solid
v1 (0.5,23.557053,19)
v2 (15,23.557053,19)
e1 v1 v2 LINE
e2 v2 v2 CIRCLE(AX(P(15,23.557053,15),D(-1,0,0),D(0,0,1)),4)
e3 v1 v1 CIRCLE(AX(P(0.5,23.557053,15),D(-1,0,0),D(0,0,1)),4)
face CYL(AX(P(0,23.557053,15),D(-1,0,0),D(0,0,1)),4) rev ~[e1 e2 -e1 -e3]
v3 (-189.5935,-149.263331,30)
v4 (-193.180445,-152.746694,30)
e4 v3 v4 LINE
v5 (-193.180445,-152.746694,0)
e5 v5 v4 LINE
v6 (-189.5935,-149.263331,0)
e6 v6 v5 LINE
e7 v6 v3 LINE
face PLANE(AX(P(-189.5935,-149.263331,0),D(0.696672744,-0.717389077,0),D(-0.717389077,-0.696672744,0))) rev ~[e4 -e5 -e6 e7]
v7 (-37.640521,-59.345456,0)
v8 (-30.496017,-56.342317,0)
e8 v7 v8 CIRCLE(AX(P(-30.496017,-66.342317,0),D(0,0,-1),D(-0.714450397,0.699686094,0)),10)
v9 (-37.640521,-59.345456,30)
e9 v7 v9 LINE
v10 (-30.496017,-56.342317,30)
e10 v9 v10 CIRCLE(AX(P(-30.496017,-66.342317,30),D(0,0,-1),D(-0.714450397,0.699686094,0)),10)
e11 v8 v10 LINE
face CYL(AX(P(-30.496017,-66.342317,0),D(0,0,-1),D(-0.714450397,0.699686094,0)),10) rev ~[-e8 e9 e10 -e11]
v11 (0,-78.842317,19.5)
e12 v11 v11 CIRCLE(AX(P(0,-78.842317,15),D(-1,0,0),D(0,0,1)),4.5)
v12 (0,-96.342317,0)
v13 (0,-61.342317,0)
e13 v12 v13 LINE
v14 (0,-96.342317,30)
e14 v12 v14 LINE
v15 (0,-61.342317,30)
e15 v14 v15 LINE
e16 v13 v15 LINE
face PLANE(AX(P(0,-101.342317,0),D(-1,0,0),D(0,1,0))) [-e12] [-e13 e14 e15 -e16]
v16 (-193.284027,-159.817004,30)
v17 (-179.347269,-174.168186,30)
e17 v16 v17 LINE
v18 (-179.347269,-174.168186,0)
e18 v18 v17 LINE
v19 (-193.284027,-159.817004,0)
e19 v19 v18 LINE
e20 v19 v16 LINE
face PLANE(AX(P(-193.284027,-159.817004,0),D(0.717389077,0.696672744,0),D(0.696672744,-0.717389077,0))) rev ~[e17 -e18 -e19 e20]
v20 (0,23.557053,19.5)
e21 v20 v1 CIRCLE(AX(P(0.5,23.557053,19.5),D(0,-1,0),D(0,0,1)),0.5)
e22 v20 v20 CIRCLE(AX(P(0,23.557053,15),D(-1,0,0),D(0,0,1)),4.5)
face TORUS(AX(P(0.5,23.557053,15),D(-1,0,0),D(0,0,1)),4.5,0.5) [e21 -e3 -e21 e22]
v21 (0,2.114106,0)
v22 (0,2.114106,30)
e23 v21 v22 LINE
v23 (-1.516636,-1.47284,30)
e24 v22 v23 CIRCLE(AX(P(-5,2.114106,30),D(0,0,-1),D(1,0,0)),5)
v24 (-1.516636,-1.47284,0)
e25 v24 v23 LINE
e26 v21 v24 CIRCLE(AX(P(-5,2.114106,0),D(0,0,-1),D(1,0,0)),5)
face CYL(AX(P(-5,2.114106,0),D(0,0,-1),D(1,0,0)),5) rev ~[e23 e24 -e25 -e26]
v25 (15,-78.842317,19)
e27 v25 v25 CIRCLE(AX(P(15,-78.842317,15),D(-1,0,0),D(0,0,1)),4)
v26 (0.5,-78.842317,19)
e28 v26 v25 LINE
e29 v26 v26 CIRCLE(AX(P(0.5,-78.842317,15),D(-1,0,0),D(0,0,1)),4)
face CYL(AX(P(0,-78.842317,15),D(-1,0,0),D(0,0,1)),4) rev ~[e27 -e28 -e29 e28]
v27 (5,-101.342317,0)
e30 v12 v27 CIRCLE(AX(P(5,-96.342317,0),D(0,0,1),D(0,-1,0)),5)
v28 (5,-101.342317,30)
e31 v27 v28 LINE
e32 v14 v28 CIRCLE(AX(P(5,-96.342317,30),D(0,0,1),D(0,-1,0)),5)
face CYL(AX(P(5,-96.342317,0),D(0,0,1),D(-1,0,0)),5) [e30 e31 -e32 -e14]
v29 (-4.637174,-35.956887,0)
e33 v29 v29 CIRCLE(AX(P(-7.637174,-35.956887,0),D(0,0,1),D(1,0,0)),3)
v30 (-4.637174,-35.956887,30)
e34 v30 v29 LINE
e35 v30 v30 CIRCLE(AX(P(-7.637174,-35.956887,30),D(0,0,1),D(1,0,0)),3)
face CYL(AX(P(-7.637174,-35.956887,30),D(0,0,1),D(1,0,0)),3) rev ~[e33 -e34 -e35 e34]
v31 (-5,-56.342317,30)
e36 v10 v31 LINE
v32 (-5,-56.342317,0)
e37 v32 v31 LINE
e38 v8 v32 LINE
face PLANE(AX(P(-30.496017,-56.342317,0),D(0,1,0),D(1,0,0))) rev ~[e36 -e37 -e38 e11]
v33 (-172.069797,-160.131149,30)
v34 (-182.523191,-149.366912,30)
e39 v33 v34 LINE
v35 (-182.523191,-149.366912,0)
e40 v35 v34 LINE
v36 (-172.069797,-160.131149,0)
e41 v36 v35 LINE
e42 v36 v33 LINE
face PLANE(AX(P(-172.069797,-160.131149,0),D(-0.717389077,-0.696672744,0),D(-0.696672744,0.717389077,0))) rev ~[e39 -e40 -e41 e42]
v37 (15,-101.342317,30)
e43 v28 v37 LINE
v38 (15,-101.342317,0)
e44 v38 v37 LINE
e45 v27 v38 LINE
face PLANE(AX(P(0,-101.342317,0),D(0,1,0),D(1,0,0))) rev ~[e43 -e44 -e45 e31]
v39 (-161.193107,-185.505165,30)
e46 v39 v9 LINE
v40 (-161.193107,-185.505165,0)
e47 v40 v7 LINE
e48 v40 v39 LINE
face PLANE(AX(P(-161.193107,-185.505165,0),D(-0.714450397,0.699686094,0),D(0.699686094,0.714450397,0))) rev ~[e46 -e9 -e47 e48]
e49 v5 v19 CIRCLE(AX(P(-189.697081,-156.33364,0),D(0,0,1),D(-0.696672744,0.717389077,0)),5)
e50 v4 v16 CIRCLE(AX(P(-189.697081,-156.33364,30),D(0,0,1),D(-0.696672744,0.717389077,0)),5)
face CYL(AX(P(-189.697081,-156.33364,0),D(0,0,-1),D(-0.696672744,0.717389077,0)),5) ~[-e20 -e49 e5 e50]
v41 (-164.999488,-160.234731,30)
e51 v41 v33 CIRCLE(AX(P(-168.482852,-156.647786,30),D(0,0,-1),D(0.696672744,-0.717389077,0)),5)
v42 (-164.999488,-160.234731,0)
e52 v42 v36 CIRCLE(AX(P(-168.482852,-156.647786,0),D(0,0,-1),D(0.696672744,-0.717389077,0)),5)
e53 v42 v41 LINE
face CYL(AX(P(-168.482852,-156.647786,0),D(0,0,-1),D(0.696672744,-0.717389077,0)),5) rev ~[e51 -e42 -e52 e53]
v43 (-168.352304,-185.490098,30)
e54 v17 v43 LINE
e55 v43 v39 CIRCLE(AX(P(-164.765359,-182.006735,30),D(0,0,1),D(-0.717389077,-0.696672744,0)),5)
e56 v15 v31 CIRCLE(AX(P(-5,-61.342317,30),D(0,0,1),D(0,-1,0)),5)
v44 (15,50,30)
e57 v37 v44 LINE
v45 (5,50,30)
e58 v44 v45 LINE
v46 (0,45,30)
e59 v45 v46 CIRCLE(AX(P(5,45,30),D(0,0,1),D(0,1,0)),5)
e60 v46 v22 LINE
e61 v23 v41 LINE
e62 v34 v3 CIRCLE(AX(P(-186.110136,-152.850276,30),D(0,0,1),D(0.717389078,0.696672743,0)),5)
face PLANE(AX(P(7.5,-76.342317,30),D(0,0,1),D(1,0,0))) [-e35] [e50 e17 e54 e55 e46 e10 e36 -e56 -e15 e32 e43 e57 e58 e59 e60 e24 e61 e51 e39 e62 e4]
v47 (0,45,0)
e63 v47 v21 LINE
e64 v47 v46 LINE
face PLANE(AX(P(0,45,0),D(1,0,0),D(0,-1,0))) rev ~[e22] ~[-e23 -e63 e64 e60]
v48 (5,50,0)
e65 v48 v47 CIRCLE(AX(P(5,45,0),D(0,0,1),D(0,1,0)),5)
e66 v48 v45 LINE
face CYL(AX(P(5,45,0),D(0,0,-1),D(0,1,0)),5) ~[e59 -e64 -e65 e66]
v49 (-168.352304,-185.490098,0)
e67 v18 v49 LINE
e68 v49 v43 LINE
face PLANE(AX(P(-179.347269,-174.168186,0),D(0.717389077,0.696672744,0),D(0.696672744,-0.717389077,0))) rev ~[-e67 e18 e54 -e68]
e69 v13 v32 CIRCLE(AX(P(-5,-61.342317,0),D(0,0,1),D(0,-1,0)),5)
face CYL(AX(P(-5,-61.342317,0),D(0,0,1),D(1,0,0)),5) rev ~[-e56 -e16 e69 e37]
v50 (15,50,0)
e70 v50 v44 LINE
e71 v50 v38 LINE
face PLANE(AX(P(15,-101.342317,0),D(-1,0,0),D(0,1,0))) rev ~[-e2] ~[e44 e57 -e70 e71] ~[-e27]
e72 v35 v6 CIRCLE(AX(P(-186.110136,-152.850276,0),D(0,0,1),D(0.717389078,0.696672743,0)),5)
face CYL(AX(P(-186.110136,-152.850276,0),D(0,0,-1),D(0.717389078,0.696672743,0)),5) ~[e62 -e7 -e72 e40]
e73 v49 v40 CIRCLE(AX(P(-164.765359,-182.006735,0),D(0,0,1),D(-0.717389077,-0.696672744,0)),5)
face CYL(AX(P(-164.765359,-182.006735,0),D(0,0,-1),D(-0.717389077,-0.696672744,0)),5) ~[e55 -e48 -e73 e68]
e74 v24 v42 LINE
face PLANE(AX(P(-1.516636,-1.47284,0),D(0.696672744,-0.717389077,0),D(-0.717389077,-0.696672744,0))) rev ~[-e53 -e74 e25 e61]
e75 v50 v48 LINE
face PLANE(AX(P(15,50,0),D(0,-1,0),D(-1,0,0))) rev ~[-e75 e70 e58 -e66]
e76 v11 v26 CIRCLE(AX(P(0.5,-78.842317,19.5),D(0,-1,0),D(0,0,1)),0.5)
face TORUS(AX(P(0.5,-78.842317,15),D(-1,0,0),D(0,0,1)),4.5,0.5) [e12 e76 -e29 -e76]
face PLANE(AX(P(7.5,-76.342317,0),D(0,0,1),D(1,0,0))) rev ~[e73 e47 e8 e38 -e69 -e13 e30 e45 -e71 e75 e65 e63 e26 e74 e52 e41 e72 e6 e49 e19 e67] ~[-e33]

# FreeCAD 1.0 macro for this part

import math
import FreeCAD as App
import Part
import Sketcher
from FreeCAD import Vector
Q = App.Units.Quantity


def edges_at(feature, points):
    """Names of the edges that pass closest to the given points."""
    edges = feature.Shape.Edges
    near = lambda p: min(range(len(edges)), key=lambda i: edges[i].distToShape(Part.Vertex(*p))[0])
    return sorted({f"Edge{near(p) + 1}" for p in points})

doc = App.newDocument("Part")
body = doc.addObject("PartDesign::Body", "Body")

# Sketch on XY plane
sketch1 = doc.addObject("Sketcher::SketchObject", "Sketch")
body.addObject(sketch1)
sketch1.AttachmentSupport = (doc.XY_Plane, [""])
sketch1.MapMode = "FlatFace"
sketch1.addGeometry(Part.LineSegment(Vector(-1.5, -1.5, 0), Vector(-165, -160.2, 0)), False)
sketch1.addGeometry(Part.ArcOfCircle(Part.Circle(Vector(-168.5, -156.6, 0), Vector(0, 0, 1), 5), math.radians(-136), math.radians(-46)), False)
sketch1.addGeometry(Part.LineSegment(Vector(-172.1, -160.1, 0), Vector(-182.5, -149.4, 0)), False)
sketch1.addGeometry(Part.ArcOfCircle(Part.Circle(Vector(-186.1, -152.9, 0), Vector(0, 0, 1), 5), math.radians(44), math.radians(134)), False)
sketch1.addGeometry(Part.LineSegment(Vector(-189.6, -149.3, 0), Vector(-193.2, -152.7, 0)), False)
sketch1.addGeometry(Part.ArcOfCircle(Part.Circle(Vector(-189.7, -156.3, 0), Vector(0, 0, 1), 5), math.radians(134), math.radians(224)), False)
sketch1.addGeometry(Part.LineSegment(Vector(-193.3, -159.8, 0), Vector(-179.3, -174.2, 0)), False)
sketch1.addGeometry(Part.LineSegment(Vector(-179.3, -174.2, 0), Vector(-168.4, -185.5, 0)), False)
sketch1.addGeometry(Part.ArcOfCircle(Part.Circle(Vector(-164.8, -182, 0), Vector(0, 0, 1), 5), math.radians(-136), math.radians(-44)), False)
sketch1.addGeometry(Part.LineSegment(Vector(-161.2, -185.5, 0), Vector(-37.6, -59.3, 0)), False)
sketch1.addGeometry(Part.ArcOfCircle(Part.Circle(Vector(-30.5, -66.3, 0), Vector(0, 0, 1), 10), math.radians(90), math.radians(136)), False)
sketch1.addGeometry(Part.LineSegment(Vector(-30.5, -56.3, 0), Vector(10, -56.3, 0)), False)
sketch1.addGeometry(Part.ArcOfCircle(Part.Circle(Vector(10, -51.3, 0), Vector(0, 0, 1), 5), math.radians(-90), math.radians(0)), False)
sketch1.addGeometry(Part.LineSegment(Vector(15, -51.3, 0), Vector(15, 50, 0)), False)
sketch1.addGeometry(Part.LineSegment(Vector(15, 50, 0), Vector(5, 50, 0)), False)
sketch1.addGeometry(Part.ArcOfCircle(Part.Circle(Vector(5, 45, 0), Vector(0, 0, 1), 5), math.radians(90), math.radians(180)), False)
sketch1.addGeometry(Part.LineSegment(Vector(0, 45, 0), Vector(0, 2.1, 0)), False)
sketch1.addGeometry(Part.ArcOfCircle(Part.Circle(Vector(-5, 2.1, 0), Vector(0, 0, 1), 5), math.radians(-46), math.radians(0)), False)
sketch1.addConstraint(Sketcher.Constraint("Tangent", 0, 2, 1, 2))
sketch1.addConstraint(Sketcher.Constraint("Tangent", 1, 1, 2, 1))
sketch1.addConstraint(Sketcher.Constraint("Tangent", 2, 2, 3, 1))
sketch1.addConstraint(Sketcher.Constraint("Tangent", 3, 2, 4, 1))
sketch1.addConstraint(Sketcher.Constraint("Tangent", 4, 2, 5, 1))
sketch1.addConstraint(Sketcher.Constraint("Tangent", 5, 2, 6, 1))
sketch1.addConstraint(Sketcher.Constraint("Coincident", 6, 2, 7, 1))
sketch1.addConstraint(Sketcher.Constraint("Tangent", 7, 2, 8, 1))
sketch1.addConstraint(Sketcher.Constraint("Tangent", 8, 2, 9, 1))
sketch1.addConstraint(Sketcher.Constraint("Tangent", 9, 2, 10, 2))
sketch1.addConstraint(Sketcher.Constraint("Tangent", 10, 1, 11, 1))
sketch1.addConstraint(Sketcher.Constraint("Tangent", 11, 2, 12, 1))
sketch1.addConstraint(Sketcher.Constraint("Tangent", 12, 2, 13, 1))
sketch1.addConstraint(Sketcher.Constraint("Coincident", 13, 2, 14, 1))
sketch1.addConstraint(Sketcher.Constraint("Tangent", 14, 2, 15, 1))
sketch1.addConstraint(Sketcher.Constraint("Tangent", 15, 2, 16, 1))
sketch1.addConstraint(Sketcher.Constraint("Tangent", 16, 2, 17, 2))
sketch1.addConstraint(Sketcher.Constraint("Tangent", 17, 1, 0, 1))
sketch1.addConstraint(Sketcher.Constraint("Horizontal", 11))
sketch1.addConstraint(Sketcher.Constraint("Vertical", 13))
sketch1.addConstraint(Sketcher.Constraint("Horizontal", 14))
sketch1.addConstraint(Sketcher.Constraint("Vertical", 16))
sketch1.addConstraint(Sketcher.Constraint("Equal", 1, 3))
sketch1.addConstraint(Sketcher.Constraint("Equal", 3, 5))
sketch1.addConstraint(Sketcher.Constraint("Equal", 5, 8))
sketch1.addConstraint(Sketcher.Constraint("Equal", 8, 12))
sketch1.addConstraint(Sketcher.Constraint("Equal", 12, 15))
sketch1.addConstraint(Sketcher.Constraint("Equal", 15, 17))
sketch1.addConstraint(Sketcher.Constraint("PointOnObject", 15, 2, -2))
sketch1.addConstraint(Sketcher.Constraint("Perpendicular", 0, 2))
sketch1.addConstraint(Sketcher.Constraint("Perpendicular", 2, 4))
sketch1.addConstraint(Sketcher.Constraint("Perpendicular", 4, 6))
sketch1.addConstraint(Sketcher.Constraint("Parallel", 6, 7))
sketch1.addConstraint(Sketcher.Constraint("Radius", 1, Q("5 mm")))
sketch1.addConstraint(Sketcher.Constraint("Radius", 10, Q("10 mm")))
sketch1.addConstraint(Sketcher.Constraint("DistanceX", 14, 2, 14, 1, Q("10 mm")))
sketch1.addConstraint(Sketcher.Constraint("Distance", 4, Q("5 mm")))
sketch1.addConstraint(Sketcher.Constraint("DistanceY", -1, 1, 15, 3, Q("45 mm")))
sketch1.addConstraint(Sketcher.Constraint("DistanceX", 3, 2, -1, 1, Q("189.5935 mm")))
sketch1.addConstraint(Sketcher.Constraint("DistanceY", 7, 2, -1, 1, Q("185.490098 mm")))
sketch1.addConstraint(Sketcher.Constraint("DistanceY", 6, 2, 1, 3, Q("17.5204 mm")))
sketch1.addConstraint(Sketcher.Constraint("Distance", 2, Q("15.004741 mm")))
sketch1.addConstraint(Sketcher.Constraint("Distance", 6, Q("20.004741 mm")))
sketch1.addConstraint(Sketcher.Constraint("Distance", 7, Q("15.782109 mm")))
sketch1.addConstraint(Sketcher.Constraint("Distance", 9, Q("176.582881 mm")))
sketch1.addConstraint(Sketcher.Constraint("DistanceX", 11, 1, 11, 2, Q("40.496017 mm")))
pad1 = doc.addObject("PartDesign::Pad", "Pad")
body.addObject(pad1)
pad1.Profile = sketch1
pad1.Length = 30

# Sketch on XY plane
sketch2 = doc.addObject("Sketcher::SketchObject", "Sketch001")
body.addObject(sketch2)
sketch2.AttachmentSupport = (doc.XY_Plane, [""])
sketch2.MapMode = "FlatFace"
sketch2.addGeometry(Part.LineSegment(Vector(0, -51, 0), Vector(0, -101, 0)), False)
sketch2.addGeometry(Part.LineSegment(Vector(0, -101, 0), Vector(15, -101, 0)), False)
sketch2.addGeometry(Part.LineSegment(Vector(15, -101, 0), Vector(15, -51, 0)), False)
sketch2.addGeometry(Part.LineSegment(Vector(15, -51, 0), Vector(0, -51, 0)), False)
sketch2.addConstraint(Sketcher.Constraint("Coincident", 0, 2, 1, 1))
sketch2.addConstraint(Sketcher.Constraint("Coincident", 1, 2, 2, 1))
sketch2.addConstraint(Sketcher.Constraint("Coincident", 2, 2, 3, 1))
sketch2.addConstraint(Sketcher.Constraint("Coincident", 3, 2, 0, 1))
sketch2.addConstraint(Sketcher.Constraint("Vertical", 0))
sketch2.addConstraint(Sketcher.Constraint("Horizontal", 1))
sketch2.addConstraint(Sketcher.Constraint("Vertical", 2))
sketch2.addConstraint(Sketcher.Constraint("Horizontal", 3))
sketch2.addConstraint(Sketcher.Constraint("PointOnObject", 0, 2, -2))
sketch2.addConstraint(Sketcher.Constraint("DistanceX", 1, 1, 1, 2, Q("15 mm")))
sketch2.addConstraint(Sketcher.Constraint("DistanceY", 0, 2, 0, 1, Q("50 mm")))
sketch2.addConstraint(Sketcher.Constraint("DistanceY", 0, 2, -1, 1, Q("101.342317 mm")))
pad2 = doc.addObject("PartDesign::Pad", "Pad001")
body.addObject(pad2)
pad2.Profile = sketch2
pad2.Length = 30
doc.recompute()

fillet = doc.addObject("PartDesign::Fillet", "Fillet")
body.addObject(fillet)
fillet.Base = (pad2, edges_at(pad2, [(0, -56.342, 15), (0, -101.342, 15)]))
fillet.Radius = 5

# Sketch on YZ plane
sketch3 = doc.addObject("Sketcher::SketchObject", "Sketch002")
body.addObject(sketch3)
sketch3.AttachmentSupport = (doc.YZ_Plane, [""])
sketch3.MapMode = "FlatFace"
sketch3.addGeometry(Part.Circle(Vector(23.6, 15, 0), Vector(0, 0, 1), 4), False)
sketch3.addConstraint(Sketcher.Constraint("Diameter", 0, Q("8 mm")))
sketch3.addConstraint(Sketcher.Constraint("DistanceY", -1, 1, 0, 3, Q("15 mm")))
sketch3.addConstraint(Sketcher.Constraint("DistanceX", -1, 1, 0, 3, Q("23.557053 mm")))
pocket1 = doc.addObject("PartDesign::Pocket", "Pocket")
body.addObject(pocket1)
pocket1.Profile = sketch3
pocket1.Length = 30
pocket1.Reversed = True

# Sketch on YZ plane
sketch4 = doc.addObject("Sketcher::SketchObject", "Sketch003")
body.addObject(sketch4)
sketch4.AttachmentSupport = (doc.YZ_Plane, [""])
sketch4.MapMode = "FlatFace"
sketch4.addGeometry(Part.Circle(Vector(-78.8, 15, 0), Vector(0, 0, 1), 4), False)
sketch4.addConstraint(Sketcher.Constraint("Diameter", 0, Q("8 mm")))
sketch4.addConstraint(Sketcher.Constraint("DistanceY", -1, 1, 0, 3, Q("15 mm")))
sketch4.addConstraint(Sketcher.Constraint("DistanceX", 0, 3, -1, 1, Q("78.842317 mm")))
pocket2 = doc.addObject("PartDesign::Pocket", "Pocket001")
body.addObject(pocket2)
pocket2.Profile = sketch4
pocket2.Length = 30
pocket2.Reversed = True
doc.recompute()

fillet2 = doc.addObject("PartDesign::Fillet", "Fillet001")
body.addObject(fillet2)
fillet2.Base = (pocket2, edges_at(pocket2, [(0, 23.557, 11), (0, -78.842, 11)]))
fillet2.Radius = 0.5

# Sketch on XY plane
sketch5 = doc.addObject("Sketcher::SketchObject", "Sketch004")
body.addObject(sketch5)
sketch5.AttachmentSupport = (doc.XY_Plane, [""])
sketch5.MapMode = "FlatFace"
sketch5.AttachmentOffset = App.Placement(Vector(0, 0, 30), App.Rotation())
sketch5.addGeometry(Part.Circle(Vector(-7.6, -36, 0), Vector(0, 0, 1), 3), False)
sketch5.addConstraint(Sketcher.Constraint("Diameter", 0, Q("6 mm")))
sketch5.addConstraint(Sketcher.Constraint("DistanceX", 0, 3, -1, 1, Q("7.637174 mm")))
sketch5.addConstraint(Sketcher.Constraint("DistanceY", 0, 3, -1, 1, Q("35.956887 mm")))
pocket3 = doc.addObject("PartDesign::Pocket", "Pocket002")
body.addObject(pocket3)
pocket3.Profile = sketch5
pocket3.Length = 30

doc.recompute()
